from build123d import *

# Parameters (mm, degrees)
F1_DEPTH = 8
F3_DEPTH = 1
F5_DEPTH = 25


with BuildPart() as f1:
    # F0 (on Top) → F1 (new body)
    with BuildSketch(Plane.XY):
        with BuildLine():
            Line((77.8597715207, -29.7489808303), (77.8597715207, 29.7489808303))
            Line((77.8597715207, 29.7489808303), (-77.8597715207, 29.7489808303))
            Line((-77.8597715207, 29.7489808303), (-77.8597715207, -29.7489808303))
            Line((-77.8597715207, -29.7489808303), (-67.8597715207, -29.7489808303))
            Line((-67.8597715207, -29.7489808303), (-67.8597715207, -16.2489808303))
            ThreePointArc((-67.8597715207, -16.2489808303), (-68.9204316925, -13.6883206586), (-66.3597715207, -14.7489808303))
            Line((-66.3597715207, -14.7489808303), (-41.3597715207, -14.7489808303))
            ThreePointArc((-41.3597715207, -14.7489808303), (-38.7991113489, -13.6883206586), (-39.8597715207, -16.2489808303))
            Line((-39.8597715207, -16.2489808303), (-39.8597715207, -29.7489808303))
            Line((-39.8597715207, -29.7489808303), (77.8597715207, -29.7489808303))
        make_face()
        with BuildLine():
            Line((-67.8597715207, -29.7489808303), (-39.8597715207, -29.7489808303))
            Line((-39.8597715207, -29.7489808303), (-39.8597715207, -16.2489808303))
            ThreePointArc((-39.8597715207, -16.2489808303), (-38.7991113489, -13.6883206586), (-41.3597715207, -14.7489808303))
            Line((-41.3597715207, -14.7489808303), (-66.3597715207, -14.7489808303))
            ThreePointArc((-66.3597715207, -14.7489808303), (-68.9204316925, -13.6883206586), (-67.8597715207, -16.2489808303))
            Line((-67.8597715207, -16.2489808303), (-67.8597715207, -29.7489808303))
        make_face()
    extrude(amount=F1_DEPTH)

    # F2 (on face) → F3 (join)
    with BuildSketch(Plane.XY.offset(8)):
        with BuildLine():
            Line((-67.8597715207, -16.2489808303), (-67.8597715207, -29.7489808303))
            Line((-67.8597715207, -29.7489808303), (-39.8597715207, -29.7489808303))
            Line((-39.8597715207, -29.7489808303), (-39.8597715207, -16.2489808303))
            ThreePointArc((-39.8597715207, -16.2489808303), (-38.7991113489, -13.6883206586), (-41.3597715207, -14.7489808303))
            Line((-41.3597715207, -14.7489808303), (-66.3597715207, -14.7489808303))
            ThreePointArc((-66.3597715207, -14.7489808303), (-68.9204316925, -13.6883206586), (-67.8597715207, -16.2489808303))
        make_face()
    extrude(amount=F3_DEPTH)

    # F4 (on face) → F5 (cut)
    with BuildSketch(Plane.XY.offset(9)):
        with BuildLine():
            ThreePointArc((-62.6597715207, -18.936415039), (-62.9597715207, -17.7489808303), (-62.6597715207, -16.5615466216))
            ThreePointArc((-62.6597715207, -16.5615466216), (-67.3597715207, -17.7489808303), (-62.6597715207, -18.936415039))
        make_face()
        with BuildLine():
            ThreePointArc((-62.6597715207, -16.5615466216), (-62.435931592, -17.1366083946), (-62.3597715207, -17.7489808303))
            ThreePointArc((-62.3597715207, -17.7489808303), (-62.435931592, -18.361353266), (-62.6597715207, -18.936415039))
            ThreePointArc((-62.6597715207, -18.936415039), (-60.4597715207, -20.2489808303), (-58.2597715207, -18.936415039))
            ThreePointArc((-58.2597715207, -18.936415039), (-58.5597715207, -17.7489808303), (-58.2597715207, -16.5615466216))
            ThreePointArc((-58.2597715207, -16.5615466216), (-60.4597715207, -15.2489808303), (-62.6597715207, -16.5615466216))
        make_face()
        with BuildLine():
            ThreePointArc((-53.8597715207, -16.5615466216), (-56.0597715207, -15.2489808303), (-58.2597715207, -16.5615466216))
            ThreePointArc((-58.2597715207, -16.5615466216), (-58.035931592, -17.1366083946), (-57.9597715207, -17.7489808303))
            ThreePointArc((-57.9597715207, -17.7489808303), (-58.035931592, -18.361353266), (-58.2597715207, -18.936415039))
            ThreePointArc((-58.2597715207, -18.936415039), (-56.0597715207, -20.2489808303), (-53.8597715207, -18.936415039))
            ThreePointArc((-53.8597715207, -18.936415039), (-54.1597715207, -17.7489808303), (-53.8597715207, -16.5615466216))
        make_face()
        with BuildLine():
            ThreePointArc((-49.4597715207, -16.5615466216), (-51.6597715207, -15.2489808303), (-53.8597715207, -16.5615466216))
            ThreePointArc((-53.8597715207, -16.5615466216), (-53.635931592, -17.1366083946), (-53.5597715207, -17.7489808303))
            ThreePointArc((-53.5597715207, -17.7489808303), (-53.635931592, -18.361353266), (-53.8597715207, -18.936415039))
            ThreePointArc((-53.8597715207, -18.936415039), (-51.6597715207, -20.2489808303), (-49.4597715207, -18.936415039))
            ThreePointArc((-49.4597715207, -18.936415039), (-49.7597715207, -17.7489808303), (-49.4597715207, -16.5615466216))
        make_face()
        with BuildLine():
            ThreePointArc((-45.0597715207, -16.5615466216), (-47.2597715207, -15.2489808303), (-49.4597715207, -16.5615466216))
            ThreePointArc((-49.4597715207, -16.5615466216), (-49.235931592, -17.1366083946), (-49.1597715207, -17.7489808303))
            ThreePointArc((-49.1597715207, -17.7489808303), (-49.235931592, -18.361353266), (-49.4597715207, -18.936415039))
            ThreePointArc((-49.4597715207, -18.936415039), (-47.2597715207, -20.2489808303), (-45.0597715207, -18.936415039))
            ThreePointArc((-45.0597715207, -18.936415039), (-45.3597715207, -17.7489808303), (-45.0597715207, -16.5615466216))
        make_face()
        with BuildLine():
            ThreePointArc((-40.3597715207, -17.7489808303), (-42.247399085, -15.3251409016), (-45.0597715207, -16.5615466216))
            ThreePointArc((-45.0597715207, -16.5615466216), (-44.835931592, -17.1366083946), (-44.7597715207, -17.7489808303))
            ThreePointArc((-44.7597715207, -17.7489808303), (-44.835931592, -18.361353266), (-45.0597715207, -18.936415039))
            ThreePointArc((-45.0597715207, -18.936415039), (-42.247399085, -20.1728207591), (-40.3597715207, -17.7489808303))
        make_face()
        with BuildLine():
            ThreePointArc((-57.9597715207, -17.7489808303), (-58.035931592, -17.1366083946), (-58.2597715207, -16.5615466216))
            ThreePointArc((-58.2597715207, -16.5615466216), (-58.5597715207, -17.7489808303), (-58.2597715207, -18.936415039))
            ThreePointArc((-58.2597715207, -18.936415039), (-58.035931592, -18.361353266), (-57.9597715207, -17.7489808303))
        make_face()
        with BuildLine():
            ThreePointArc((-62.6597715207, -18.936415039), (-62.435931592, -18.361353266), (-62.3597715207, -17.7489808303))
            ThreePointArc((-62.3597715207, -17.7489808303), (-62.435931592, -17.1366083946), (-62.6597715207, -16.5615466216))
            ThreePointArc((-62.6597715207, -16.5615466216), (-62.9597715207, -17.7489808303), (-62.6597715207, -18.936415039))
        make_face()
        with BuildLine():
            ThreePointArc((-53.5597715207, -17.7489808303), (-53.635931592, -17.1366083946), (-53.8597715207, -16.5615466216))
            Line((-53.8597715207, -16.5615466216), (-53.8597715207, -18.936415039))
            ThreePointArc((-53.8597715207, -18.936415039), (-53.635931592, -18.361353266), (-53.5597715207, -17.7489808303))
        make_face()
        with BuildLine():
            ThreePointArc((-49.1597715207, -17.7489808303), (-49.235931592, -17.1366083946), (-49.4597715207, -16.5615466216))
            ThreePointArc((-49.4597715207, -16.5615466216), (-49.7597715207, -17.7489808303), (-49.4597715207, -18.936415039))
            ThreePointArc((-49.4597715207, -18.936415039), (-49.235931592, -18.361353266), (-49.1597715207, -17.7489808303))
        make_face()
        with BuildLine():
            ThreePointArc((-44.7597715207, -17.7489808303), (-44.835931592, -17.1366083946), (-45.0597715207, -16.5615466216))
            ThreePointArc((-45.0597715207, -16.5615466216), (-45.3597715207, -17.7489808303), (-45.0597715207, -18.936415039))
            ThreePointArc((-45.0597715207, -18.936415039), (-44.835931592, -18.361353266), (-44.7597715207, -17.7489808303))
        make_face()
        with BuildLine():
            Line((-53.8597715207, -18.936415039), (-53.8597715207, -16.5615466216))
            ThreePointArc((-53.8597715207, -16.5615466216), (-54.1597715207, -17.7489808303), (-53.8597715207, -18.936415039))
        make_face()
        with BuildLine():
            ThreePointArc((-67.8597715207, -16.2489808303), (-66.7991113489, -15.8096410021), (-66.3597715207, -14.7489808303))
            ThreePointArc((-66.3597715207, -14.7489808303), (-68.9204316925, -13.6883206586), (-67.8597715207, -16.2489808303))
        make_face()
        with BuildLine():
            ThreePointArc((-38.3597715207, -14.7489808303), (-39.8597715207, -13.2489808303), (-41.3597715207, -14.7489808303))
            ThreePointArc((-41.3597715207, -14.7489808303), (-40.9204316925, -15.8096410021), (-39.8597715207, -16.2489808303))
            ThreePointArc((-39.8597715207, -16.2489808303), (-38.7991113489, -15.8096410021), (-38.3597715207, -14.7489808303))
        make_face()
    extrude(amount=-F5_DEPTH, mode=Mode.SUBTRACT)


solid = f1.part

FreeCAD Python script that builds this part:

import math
import FreeCAD as App
import Part
import Sketcher

V = App.Vector

doc = App.newDocument("Part")
body = doc.addObject("PartDesign::Body", "Body")

# Sketch on XY plane
sketch1 = doc.addObject("Sketcher::SketchObject", "Sketch")
body.addObject(sketch1)
sketch1.AttachmentSupport = (doc.XY_Plane, [""])
sketch1.MapMode = "FlatFace"
sketch1.addGeometry([
    Part.LineSegment(V(77.859772, -29.748981, 0), V(77.859772, 29.748981, 0)),
    Part.LineSegment(V(77.859772, 29.748981, 0), V(-77.859772, 29.748981, 0)),
    Part.LineSegment(V(-77.859772, 29.748981, 0), V(-77.859772, -29.748981, 0)),
    Part.LineSegment(V(-77.859772, -29.748981, 0), V(77.859772, -29.748981, 0)),
], False)
sketch1.addConstraint([
    Sketcher.Constraint("Coincident", 0, 2, 1, 1),
    Sketcher.Constraint("Coincident", 1, 2, 2, 1),
    Sketcher.Constraint("Coincident", 2, 2, 3, 1),
    Sketcher.Constraint("Coincident", 3, 2, 0, 1),
    Sketcher.Constraint("Vertical", 0),
    Sketcher.Constraint("Horizontal", 1),
    Sketcher.Constraint("Vertical", 2),
    Sketcher.Constraint("Horizontal", 3),
    Sketcher.Constraint("Symmetric", 0, 2, 2, 2, -1, 1),
    Sketcher.Constraint("DistanceY", 0, 1, 0, 2, 59.497962),
    Sketcher.Constraint("DistanceX", 1, 2, 1, 1, 155.719543),
])
pad1 = doc.addObject("PartDesign::Pad", "Pad")
body.addObject(pad1)
pad1.Profile = sketch1
pad1.Length = 8

# Sketch on XY plane
sketch2 = doc.addObject("Sketcher::SketchObject", "Sketch001")
body.addObject(sketch2)
sketch2.AttachmentSupport = (doc.XY_Plane, [""])
sketch2.MapMode = "FlatFace"
sketch2.AttachmentOffset = App.Placement(V(0, 0, 8), App.Rotation())
sketch2.addGeometry([
    Part.LineSegment(V(-67.859772, -16.248981, 0), V(-67.859772, -29.748981, 0)),  # 0
    Part.LineSegment(V(-67.859772, -29.748981, 0), V(-39.859772, -29.748981, 0)),  # 1
    Part.LineSegment(V(-39.859772, -29.748981, 0), V(-39.859772, -16.248981, 0)),  # 2
    Part.ArcOfCircle(Part.Circle(V(-39.859772, -14.748981, 0), V(0, 0, 1), 1.5), math.radians(-90), math.radians(180)),  # 3
    Part.LineSegment(V(-41.359772, -14.748981, 0), V(-66.359772, -14.748981, 0)),  # 4
    Part.ArcOfCircle(Part.Circle(V(-67.859772, -14.748981, 0), V(0, 0, 1), 1.5), math.radians(0), math.radians(270)),  # 5
], False)
sketch2.addConstraint([
    Sketcher.Constraint("Coincident", 0, 2, 1, 1),
    Sketcher.Constraint("Coincident", 1, 2, 2, 1),
    Sketcher.Constraint("Coincident", 2, 2, 3, 1),
    Sketcher.Constraint("Coincident", 3, 2, 4, 1),
    Sketcher.Constraint("Coincident", 4, 2, 5, 1),
    Sketcher.Constraint("Coincident", 5, 2, 0, 1),
    Sketcher.Constraint("Vertical", 0),
    Sketcher.Constraint("Horizontal", 1),
    Sketcher.Constraint("Vertical", 2),
    Sketcher.Constraint("Horizontal", 4),
    Sketcher.Constraint("Equal", 3, 5),
    Sketcher.Constraint("Horizontal", 3, 3, 5, 3),
    Sketcher.Constraint("Horizontal", 5, 3, 3, 2),
    Sketcher.Constraint("Vertical", 5, 3, 0, 2),
    Sketcher.Constraint("Vertical", 3, 3, 1, 2),
    Sketcher.Constraint("Radius", 3, 1.5),
    Sketcher.Constraint("DistanceX", 1, 1, 1, 2, 28.0),
    Sketcher.Constraint("DistanceY", 0, 2, 0, 1, 13.5),
    Sketcher.Constraint("DistanceX", 3, 3, -1, 1, 39.859772),
    Sketcher.Constraint("DistanceY", 3, 3, -1, 1, 14.748981),
])
pad2 = doc.addObject("PartDesign::Pad", "Pad001")
body.addObject(pad2)
pad2.Profile = sketch2
pad2.Length = 1

# Sketch on XY plane
sketch3 = doc.addObject("Sketcher::SketchObject", "Sketch002")
body.addObject(sketch3)
sketch3.AttachmentSupport = (doc.XY_Plane, [""])
sketch3.MapMode = "FlatFace"
sketch3.AttachmentOffset = App.Placement(V(0, 0, 9), App.Rotation())
sketch3.addGeometry([
    Part.ArcOfCircle(Part.Circle(V(-64.859772, -17.748981, 0), V(0, 0, 1), 2.5), math.radians(28.357637), math.radians(331.642363)),  # 0
    Part.ArcOfCircle(Part.Circle(V(-60.459772, -17.748981, 0), V(0, 0, 1), 2.5), math.radians(-151.642363), math.radians(-28.357637)),  # 1
    Part.ArcOfCircle(Part.Circle(V(-56.059772, -17.748981, 0), V(0, 0, 1), 2.5), math.radians(-151.642363), math.radians(-28.357637)),  # 2
    Part.ArcOfCircle(Part.Circle(V(-51.659772, -17.748981, 0), V(0, 0, 1), 2.5), math.radians(-151.642363), math.radians(-28.357637)),  # 3
    Part.ArcOfCircle(Part.Circle(V(-47.259772, -17.748981, 0), V(0, 0, 1), 2.5), math.radians(-151.642363), math.radians(-28.357637)),  # 4
    Part.ArcOfCircle(Part.Circle(V(-42.859772, -17.748981, 0), V(0, 0, 1), 2.5), math.radians(-151.642363), math.radians(0)),  # 5
    Part.ArcOfCircle(Part.Circle(V(-42.859772, -17.748981, 0), V(0, 0, 1), 2.5), math.radians(0), math.radians(151.642363)),  # 6
    Part.ArcOfCircle(Part.Circle(V(-47.259772, -17.748981, 0), V(0, 0, 1), 2.5), math.radians(28.357637), math.radians(151.642363)),  # 7
    Part.ArcOfCircle(Part.Circle(V(-51.659772, -17.748981, 0), V(0, 0, 1), 2.5), math.radians(28.357637), math.radians(151.642363)),  # 8
    Part.ArcOfCircle(Part.Circle(V(-56.059772, -17.748981, 0), V(0, 0, 1), 2.5), math.radians(28.357637), math.radians(151.642363)),  # 9
    Part.ArcOfCircle(Part.Circle(V(-60.459772, -17.748981, 0), V(0, 0, 1), 2.5), math.radians(28.357637), math.radians(151.642363)),  # 10
    Part.ArcOfCircle(Part.Circle(V(-67.859772, -14.748981, 0), V(0, 0, 1), 1.5), math.radians(-90), math.radians(0)),  # 11
    Part.ArcOfCircle(Part.Circle(V(-67.859772, -14.748981, 0), V(0, 0, 1), 1.5), math.radians(0), math.radians(270)),  # 12
    Part.ArcOfCircle(Part.Circle(V(-39.859772, -14.748981, 0), V(0, 0, 1), 1.5), math.radians(0), math.radians(180)),  # 13
    Part.ArcOfCircle(Part.Circle(V(-39.859772, -14.748981, 0), V(0, 0, 1), 1.5), math.radians(180), math.radians(270)),  # 14
    Part.ArcOfCircle(Part.Circle(V(-39.859772, -14.748981, 0), V(0, 0, 1), 1.5), math.radians(-90), math.radians(0)),  # 15
], False)
sketch3.addConstraint([
    Sketcher.Constraint("Coincident", 0, 2, 1, 1),
    Sketcher.Constraint("Coincident", 1, 2, 2, 1),
    Sketcher.Constraint("Coincident", 2, 2, 3, 1),
    Sketcher.Constraint("Coincident", 3, 2, 4, 1),
    Sketcher.Constraint("Coincident", 4, 2, 5, 1),
    Sketcher.Constraint("Tangent", 5, 2, 6, 1),
    Sketcher.Constraint("Coincident", 6, 2, 7, 1),
    Sketcher.Constraint("Coincident", 7, 2, 8, 1),
    Sketcher.Constraint("Coincident", 8, 2, 9, 1),
    Sketcher.Constraint("Coincident", 9, 2, 10, 1),
    Sketcher.Constraint("Coincident", 10, 2, 0, 1),
    Sketcher.Constraint("Tangent", 11, 1, 12, 2),
    Sketcher.Constraint("Coincident", 12, 1, 11, 2),
    Sketcher.Constraint("Tangent", 13, 2, 14, 1),
    Sketcher.Constraint("Tangent", 14, 2, 15, 1),
    Sketcher.Constraint("Tangent", 15, 2, 13, 1),
    Sketcher.Constraint("Coincident", 7, 3, 4, 3),
    Sketcher.Constraint("Coincident", 8, 3, 3, 3),
    Sketcher.Constraint("Coincident", 9, 3, 2, 3),
    Sketcher.Constraint("Coincident", 10, 3, 1, 3),
    Sketcher.Constraint("Equal", 0, 1),
    Sketcher.Constraint("Equal", 1, 2),
    Sketcher.Constraint("Equal", 2, 3),
    Sketcher.Constraint("Equal", 3, 4),
    Sketcher.Constraint("Equal", 4, 5),
    Sketcher.Constraint("Equal", 5, 6),
    Sketcher.Constraint("Equal", 6, 7),
    Sketcher.Constraint("Equal", 7, 8),
    Sketcher.Constraint("Equal", 8, 9),
    Sketcher.Constraint("Equal", 9, 10),
    Sketcher.Constraint("Equal", 12, 13),
    Sketcher.Constraint("Horizontal", 0, 3, 1, 3),
    Sketcher.Constraint("Horizontal", 1, 3, 2, 3),
    Sketcher.Constraint("Horizontal", 2, 3, 3, 3),
    Sketcher.Constraint("Horizontal", 3, 3, 4, 3),
    Sketcher.Constraint("Horizontal", 4, 3, 5, 3),
    Sketcher.Constraint("Horizontal", 12, 3, 13, 3),
    Sketcher.Constraint("Horizontal", 0, 2, 1, 2),
    Sketcher.Constraint("Horizontal", 1, 2, 2, 2),
    Sketcher.Constraint("Horizontal", 2, 2, 3, 2),
    Sketcher.Constraint("Horizontal", 3, 2, 4, 2),
    Sketcher.Constraint("Horizontal", 10, 3, 5, 2),
    Sketcher.Constraint("Horizontal", 15, 3, 12, 1),
    Sketcher.Constraint("Horizontal", 12, 1, 13, 2),
    Sketcher.Constraint("Horizontal", 13, 2, 15, 2),
    Sketcher.Constraint("Vertical", 12, 3, 11, 1),
    Sketcher.Constraint("Vertical", 15, 3, 14, 2),
    Sketcher.Constraint("Radius", 0, 2.5),
    Sketcher.Constraint("Radius", 11, 1.5),
    Sketcher.Constraint("DistanceX", 0, 3, 5, 3, 22.0),
    Sketcher.Constraint("DistanceX", 11, 3, 0, 3, 3.0),
    Sketcher.Constraint("DistanceY", 0, 3, 11, 3, 3.0),
    Sketcher.Constraint("DistanceX", 5, 3, 13, 3, 3.0),
    Sketcher.Constraint("DistanceX", 0, 3, -1, 1, 64.859772),
    Sketcher.Constraint("DistanceY", 0, 3, -1, 1, 17.748981),
])
pocket1 = doc.addObject("PartDesign::Pocket", "Pocket")
body.addObject(pocket1)
pocket1.Profile = sketch3
pocket1.Length = 25

doc.recompute()
